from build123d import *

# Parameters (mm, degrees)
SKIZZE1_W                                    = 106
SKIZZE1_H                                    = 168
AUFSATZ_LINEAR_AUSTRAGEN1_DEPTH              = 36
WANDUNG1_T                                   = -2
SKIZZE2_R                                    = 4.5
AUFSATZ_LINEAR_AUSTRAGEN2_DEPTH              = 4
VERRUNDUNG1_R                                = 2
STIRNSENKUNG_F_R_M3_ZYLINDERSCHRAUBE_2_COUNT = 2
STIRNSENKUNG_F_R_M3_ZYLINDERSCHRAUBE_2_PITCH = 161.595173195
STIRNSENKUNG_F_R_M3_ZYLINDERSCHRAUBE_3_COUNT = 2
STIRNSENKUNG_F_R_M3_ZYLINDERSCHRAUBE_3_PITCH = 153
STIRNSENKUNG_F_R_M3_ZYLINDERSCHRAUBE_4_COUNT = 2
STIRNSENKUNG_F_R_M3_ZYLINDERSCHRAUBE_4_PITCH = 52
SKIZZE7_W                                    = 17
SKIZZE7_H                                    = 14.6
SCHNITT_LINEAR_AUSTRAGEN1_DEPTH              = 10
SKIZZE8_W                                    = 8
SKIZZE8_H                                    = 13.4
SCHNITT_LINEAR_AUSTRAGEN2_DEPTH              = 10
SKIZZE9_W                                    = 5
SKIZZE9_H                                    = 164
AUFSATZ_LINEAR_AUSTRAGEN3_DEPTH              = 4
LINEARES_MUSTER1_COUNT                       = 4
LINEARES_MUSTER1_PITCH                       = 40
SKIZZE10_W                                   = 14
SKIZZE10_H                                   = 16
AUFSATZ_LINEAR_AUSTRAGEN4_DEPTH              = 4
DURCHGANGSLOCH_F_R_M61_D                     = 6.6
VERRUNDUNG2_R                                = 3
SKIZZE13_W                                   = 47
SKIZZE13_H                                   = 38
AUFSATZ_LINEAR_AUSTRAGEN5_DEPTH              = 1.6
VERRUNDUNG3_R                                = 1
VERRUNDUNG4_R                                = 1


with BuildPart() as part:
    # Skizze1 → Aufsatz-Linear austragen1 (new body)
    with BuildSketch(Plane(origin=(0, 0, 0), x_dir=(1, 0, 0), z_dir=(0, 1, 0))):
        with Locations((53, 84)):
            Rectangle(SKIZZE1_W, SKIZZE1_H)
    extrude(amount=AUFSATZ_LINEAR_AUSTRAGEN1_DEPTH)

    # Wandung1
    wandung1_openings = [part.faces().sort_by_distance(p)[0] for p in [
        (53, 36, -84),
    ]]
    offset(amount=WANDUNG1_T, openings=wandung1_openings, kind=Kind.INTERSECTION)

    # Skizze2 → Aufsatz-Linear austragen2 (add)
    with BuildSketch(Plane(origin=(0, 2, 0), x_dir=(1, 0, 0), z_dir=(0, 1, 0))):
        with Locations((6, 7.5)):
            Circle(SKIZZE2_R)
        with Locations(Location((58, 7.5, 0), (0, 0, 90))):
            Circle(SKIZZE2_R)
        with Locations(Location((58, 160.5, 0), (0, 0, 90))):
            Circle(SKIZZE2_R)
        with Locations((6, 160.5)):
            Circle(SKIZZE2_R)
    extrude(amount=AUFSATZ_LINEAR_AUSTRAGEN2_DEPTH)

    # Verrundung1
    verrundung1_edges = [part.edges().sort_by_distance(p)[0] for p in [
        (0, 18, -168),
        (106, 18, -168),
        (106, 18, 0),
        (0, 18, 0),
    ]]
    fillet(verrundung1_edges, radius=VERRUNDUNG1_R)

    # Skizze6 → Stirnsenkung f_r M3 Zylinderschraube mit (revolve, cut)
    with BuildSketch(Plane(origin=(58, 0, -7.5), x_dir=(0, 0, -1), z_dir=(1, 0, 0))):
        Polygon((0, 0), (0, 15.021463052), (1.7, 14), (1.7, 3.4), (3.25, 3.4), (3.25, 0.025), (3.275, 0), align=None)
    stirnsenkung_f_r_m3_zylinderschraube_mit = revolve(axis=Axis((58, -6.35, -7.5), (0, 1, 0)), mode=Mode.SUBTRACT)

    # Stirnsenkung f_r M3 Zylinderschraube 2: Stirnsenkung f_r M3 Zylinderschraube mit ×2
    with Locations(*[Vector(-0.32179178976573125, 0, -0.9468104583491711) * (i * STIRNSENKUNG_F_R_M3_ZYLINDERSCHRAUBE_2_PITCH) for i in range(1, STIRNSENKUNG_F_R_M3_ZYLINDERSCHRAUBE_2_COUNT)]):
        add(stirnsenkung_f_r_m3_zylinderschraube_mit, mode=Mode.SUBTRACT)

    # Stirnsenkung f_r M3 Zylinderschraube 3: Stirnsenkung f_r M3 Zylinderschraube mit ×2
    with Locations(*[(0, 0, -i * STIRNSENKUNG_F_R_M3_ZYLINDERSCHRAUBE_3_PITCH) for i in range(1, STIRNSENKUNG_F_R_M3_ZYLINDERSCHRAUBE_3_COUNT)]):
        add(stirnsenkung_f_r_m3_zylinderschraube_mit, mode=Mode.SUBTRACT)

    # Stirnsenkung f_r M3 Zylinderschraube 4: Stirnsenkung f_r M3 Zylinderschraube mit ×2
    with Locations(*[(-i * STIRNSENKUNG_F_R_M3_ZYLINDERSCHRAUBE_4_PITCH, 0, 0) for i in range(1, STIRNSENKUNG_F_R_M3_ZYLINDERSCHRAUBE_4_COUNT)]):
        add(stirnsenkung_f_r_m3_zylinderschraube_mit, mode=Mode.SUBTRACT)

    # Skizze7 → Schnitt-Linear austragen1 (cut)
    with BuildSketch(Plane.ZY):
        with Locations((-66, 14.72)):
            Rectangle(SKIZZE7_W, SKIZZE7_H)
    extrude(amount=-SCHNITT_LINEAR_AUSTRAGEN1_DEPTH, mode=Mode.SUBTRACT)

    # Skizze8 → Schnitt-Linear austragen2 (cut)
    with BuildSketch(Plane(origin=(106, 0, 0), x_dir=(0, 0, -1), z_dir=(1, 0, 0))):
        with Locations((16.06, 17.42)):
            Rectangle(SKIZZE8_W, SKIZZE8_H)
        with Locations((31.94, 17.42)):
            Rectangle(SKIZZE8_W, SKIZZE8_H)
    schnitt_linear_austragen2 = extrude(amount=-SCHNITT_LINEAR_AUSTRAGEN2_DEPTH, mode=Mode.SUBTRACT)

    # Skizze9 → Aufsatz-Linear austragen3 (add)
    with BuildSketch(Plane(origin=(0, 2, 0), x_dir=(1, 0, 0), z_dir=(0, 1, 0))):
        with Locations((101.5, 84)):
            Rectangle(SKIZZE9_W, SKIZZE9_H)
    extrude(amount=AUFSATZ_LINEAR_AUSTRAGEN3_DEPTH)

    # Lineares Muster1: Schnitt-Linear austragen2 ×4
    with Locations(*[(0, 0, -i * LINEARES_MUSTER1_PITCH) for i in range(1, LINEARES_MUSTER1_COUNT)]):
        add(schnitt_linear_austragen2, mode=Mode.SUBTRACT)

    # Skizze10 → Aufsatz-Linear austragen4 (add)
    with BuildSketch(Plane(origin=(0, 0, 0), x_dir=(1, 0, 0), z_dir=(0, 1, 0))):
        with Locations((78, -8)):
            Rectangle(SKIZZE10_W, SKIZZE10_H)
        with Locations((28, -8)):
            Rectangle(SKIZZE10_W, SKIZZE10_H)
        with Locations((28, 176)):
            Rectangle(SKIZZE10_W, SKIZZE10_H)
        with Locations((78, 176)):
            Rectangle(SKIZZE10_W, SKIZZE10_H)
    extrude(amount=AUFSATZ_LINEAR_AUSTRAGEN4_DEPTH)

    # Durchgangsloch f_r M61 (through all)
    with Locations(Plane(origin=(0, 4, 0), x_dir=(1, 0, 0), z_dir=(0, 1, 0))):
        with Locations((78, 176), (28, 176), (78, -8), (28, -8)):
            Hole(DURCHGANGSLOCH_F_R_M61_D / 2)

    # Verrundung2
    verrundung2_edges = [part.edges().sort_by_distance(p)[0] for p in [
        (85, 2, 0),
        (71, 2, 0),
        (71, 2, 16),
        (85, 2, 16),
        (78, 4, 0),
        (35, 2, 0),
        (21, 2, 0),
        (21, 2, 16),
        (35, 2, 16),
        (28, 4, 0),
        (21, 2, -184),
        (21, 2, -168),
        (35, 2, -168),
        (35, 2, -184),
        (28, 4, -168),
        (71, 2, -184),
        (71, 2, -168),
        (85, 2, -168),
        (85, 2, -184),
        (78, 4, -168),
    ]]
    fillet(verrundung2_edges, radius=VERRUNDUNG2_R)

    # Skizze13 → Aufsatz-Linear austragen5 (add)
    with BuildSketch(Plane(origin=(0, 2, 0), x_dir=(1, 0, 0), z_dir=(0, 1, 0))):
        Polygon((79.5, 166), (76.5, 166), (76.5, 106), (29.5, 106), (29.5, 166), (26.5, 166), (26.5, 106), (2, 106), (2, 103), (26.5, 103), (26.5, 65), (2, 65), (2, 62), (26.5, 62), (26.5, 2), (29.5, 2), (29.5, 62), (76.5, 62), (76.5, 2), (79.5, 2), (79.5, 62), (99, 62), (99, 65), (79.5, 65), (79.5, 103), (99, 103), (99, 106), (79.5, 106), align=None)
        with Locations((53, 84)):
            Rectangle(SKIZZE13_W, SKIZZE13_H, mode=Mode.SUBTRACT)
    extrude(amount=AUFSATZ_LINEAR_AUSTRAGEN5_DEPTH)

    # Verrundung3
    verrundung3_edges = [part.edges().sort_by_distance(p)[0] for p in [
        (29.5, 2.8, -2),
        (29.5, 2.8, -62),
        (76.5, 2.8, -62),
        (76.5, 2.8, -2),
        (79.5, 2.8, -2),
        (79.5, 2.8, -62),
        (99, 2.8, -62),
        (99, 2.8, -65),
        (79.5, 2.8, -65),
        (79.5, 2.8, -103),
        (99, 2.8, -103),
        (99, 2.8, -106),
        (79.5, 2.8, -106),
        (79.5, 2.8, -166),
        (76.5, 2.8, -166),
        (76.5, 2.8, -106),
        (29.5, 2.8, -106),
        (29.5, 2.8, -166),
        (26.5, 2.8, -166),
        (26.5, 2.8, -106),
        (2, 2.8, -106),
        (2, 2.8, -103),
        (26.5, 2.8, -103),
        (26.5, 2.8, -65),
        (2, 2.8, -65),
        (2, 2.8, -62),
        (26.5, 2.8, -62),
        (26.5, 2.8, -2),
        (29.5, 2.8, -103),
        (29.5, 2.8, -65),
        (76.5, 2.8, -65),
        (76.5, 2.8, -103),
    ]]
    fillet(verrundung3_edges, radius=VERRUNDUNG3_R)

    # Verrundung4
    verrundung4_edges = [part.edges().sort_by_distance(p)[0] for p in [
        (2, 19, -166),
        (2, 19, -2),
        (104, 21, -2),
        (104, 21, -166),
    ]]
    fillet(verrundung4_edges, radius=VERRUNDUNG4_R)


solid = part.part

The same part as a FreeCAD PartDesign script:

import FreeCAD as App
import Part
import Sketcher
Q = App.Units.Quantity


def edges_at(feature, points):
    """Names of the edges that pass closest to the given points."""
    edges = feature.Shape.Edges
    near = lambda p: min(range(len(edges)), key=lambda i: edges[i].distToShape(Part.Vertex(*p))[0])
    return sorted({f"Edge{near(p) + 1}" for p in points})


def faces_at(feature, points):
    """Names of the faces that lie closest to the given points."""
    faces = feature.Shape.Faces
    near = lambda p: min(range(len(faces)), key=lambda i: faces[i].distToShape(Part.Vertex(*p))[0])
    return sorted({f"Face{near(p) + 1}" for p in points})


def add_polygon(sketch, points):
    """Adds a closed chain of lines whose ends are joined by coincident constraints."""
    first, n = sketch.GeometryCount, len(points)
    for a, b in zip(points, points[1:] + points[:1]):
        sketch.addGeometry(Part.LineSegment(App.Vector(*a, 0), App.Vector(*b, 0)), False)
    for i in range(n):
        sketch.addConstraint(Sketcher.Constraint("Coincident", first + i, 2, first + (i + 1) % n, 1))

doc = App.newDocument("Part")
params = doc.addObject("Spreadsheet::Sheet", "Params")
for row, (alias, value) in enumerate([
    ("sketch1_width", "106 mm"),
    ("sketch1_height", "168 mm"),
    ("pad1_length", "36 mm"),
    ("thickness_wall", "2 mm"),
    ("sketch2_diameter", "9 mm"),
    ("pad2_length", "4 mm"),
    ("fillet_radius", "2 mm"),
    ("sketch3_width", "10.6 mm"),
    ("sketch3_height", "1.55 mm"),
    ("groove_angle", "360 deg"),
    ("linearpattern_pitch", "161.595173 mm"),
    ("linearpattern2_pitch", "153 mm"),
    ("linearpattern3_pitch", "52 mm"),
    ("sketch4_height", "17 mm"),
    ("sketch4_width", "14.6 mm"),
    ("pocket1_length", "10 mm"),
    ("sketch5_height", "8 mm"),
    ("sketch5_width", "13.4 mm"),
    ("pocket2_length", "10 mm"),
    ("sketch6_width", "5 mm"),
    ("sketch6_height", "164 mm"),
    ("pad3_length", "4 mm"),
    ("linearpattern4_pitch", "40 mm"),
    ("sketch7_width", "14 mm"),
    ("sketch7_height", "16 mm"),
    ("pad4_length", "4 mm"),
    ("sketch8_diameter", "6.6 mm"),
    ("hole_diameter", "6.6 mm"),
    ("fillet2_radius", "3 mm"),
    ("sketch9_width", "3 mm"),
    ("sketch9_width2", "47 mm"),
    ("sketch9_height", "60 mm"),
    ("sketch9_height2", "38 mm"),
    ("sketch9_width3", "24.5 mm"),
    ("pad5_length", "1.6 mm"),
    ("fillet3_radius", "1 mm"),
    ("fillet4_radius", "1 mm"),
], start=1):
    params.set(f"A{row}", alias)
    params.set(f"B{row}", "=" + value)
    params.setAlias(f"B{row}", alias)

body = doc.addObject("PartDesign::Body", "Body")

# Sketch on XZ plane
sketch1 = doc.addObject("Sketcher::SketchObject", "Sketch")
body.addObject(sketch1)
sketch1.AttachmentSupport = (doc.XZ_Plane, [""])
sketch1.MapMode = "FlatFace"
add_polygon(sketch1, [(0, -168), (0, 0), (106, 0), (106, -168)])  # lines 0-3
sketch1.addConstraint([
    Sketcher.Constraint("Vertical", 0),
    Sketcher.Constraint("Horizontal", 1),
    Sketcher.Constraint("Vertical", 2),
    Sketcher.Constraint("Horizontal", 3),
    Sketcher.Constraint("Coincident", 0, 2, -1, 1),
    Sketcher.Constraint("DistanceX", 1, 1, 1, 2, Q("106 mm")),
    Sketcher.Constraint("DistanceY", 0, 1, 0, 2, Q("168 mm")),
])
sketch1.setExpression("Constraints[9]", "Params.sketch1_width")
sketch1.setExpression("Constraints[10]", "Params.sketch1_height")
pad1 = doc.addObject("PartDesign::Pad", "Pad")
body.addObject(pad1)
pad1.Profile = sketch1
pad1.setExpression("Length", "Params.pad1_length")
pad1.Reversed = True
doc.recompute()

thickness = doc.addObject("PartDesign::Thickness", "Thickness")
body.addObject(thickness)
thickness.Base = (pad1, faces_at(pad1, [(53, 36, -84)]))
thickness.setExpression("Value", "Params.thickness_wall")
thickness.Reversed = True
thickness.Join = "Intersection"

# Sketch on XZ plane
sketch2 = doc.addObject("Sketcher::SketchObject", "Sketch001")
body.addObject(sketch2)
sketch2.AttachmentSupport = (doc.XZ_Plane, [""])
sketch2.MapMode = "FlatFace"
sketch2.AttachmentOffset = App.Placement(App.Vector(0, 0, -2), App.Rotation())
sketch2.addGeometry([
    Part.Circle(App.Vector(6, -7.5, 0), App.Vector(0, 0, 1), 4.5),
    Part.Circle(App.Vector(58, -7.5, 0), App.Vector(0, 0, 1), 4.5),
    Part.Circle(App.Vector(58, -160.5, 0), App.Vector(0, 0, 1), 4.5),
    Part.Circle(App.Vector(6, -160.5, 0), App.Vector(0, 0, 1), 4.5),
], False)
sketch2.addConstraint([
    Sketcher.Constraint("Equal", 0, 1),
    Sketcher.Constraint("Equal", 1, 2),
    Sketcher.Constraint("Equal", 2, 3),
    Sketcher.Constraint("Horizontal", 0, 3, 1, 3),
    Sketcher.Constraint("Horizontal", 2, 3, 3, 3),
    Sketcher.Constraint("Vertical", 1, 3, 2, 3),
    Sketcher.Constraint("Vertical", 0, 3, 3, 3),
    Sketcher.Constraint("Diameter", 0, Q("9 mm")),
    Sketcher.Constraint("DistanceX", -1, 1, 0, 3, Q("6 mm")),
    Sketcher.Constraint("DistanceX", -1, 1, 1, 3, Q("58 mm")),
    Sketcher.Constraint("DistanceY", 2, 3, 1, 3, Q("153 mm")),
    Sketcher.Constraint("DistanceY", 0, 3, -1, 1, Q("7.5 mm")),
])
sketch2.setExpression("Constraints[7]", "Params.sketch2_diameter")
pad2 = doc.addObject("PartDesign::Pad", "Pad001")
body.addObject(pad2)
pad2.Profile = sketch2
pad2.setExpression("Length", "Params.pad2_length")
pad2.Reversed = True
doc.recompute()

fillet = doc.addObject("PartDesign::Fillet", "Fillet")
body.addObject(fillet)
fillet.Base = (pad2, edges_at(pad2, [
    (0, 18, -168),
    (106, 18, -168),
    (106, 18, 0),
    (0, 18, 0),
]))
fillet.setExpression("Radius", "Params.fillet_radius")

# Sketch on YZ plane
sketch3 = doc.addObject("Sketcher::SketchObject", "Sketch002")
body.addObject(sketch3)
sketch3.AttachmentSupport = (doc.YZ_Plane, [""])
sketch3.MapMode = "FlatFace"
sketch3.AttachmentOffset = App.Placement(App.Vector(0, 0, 58), App.Rotation())
add_polygon(sketch3, [(15.021463, -7.5), (0, -7.5), (0, -10.775), (0.025, -10.75), (3.4, -10.75), (3.4, -9.2), (14, -9.2)])  # lines 0-6
sketch3.addGeometry(Part.LineSegment(App.Vector(0, -7.5, 0), App.Vector(15.021463, -7.5, 0)), True)  # axis
sketch3.addConstraint([
    Sketcher.Constraint("Horizontal", 0),
    Sketcher.Constraint("Vertical", 1),
    Sketcher.Constraint("Horizontal", 3),
    Sketcher.Constraint("Vertical", 4),
    Sketcher.Constraint("Horizontal", 5),
    Sketcher.Constraint("Horizontal", 7),
    Sketcher.Constraint("Coincident", 7, 1, 0, 2),
    Sketcher.Constraint("PointOnObject", 0, 2, -2),
    Sketcher.Constraint("Equal", 0, 7),
    Sketcher.Constraint("Angle", 2, Q("45 deg")),
    Sketcher.Constraint("Angle", 6, Q("59 deg")),
    Sketcher.Constraint("DistanceX", 5, 1, 5, 2, Q("10.6 mm")),
    Sketcher.Constraint("DistanceX", -1, 1, 5, 2, Q("14 mm")),
    Sketcher.Constraint("DistanceY", 4, 1, 4, 2, Q("1.55 mm")),
    Sketcher.Constraint("DistanceY", 0, 2, -1, 1, Q("7.5 mm")),
    Sketcher.Constraint("DistanceY", 4, 2, -1, 1, Q("9.2 mm")),
    Sketcher.Constraint("DistanceX", 3, 1, 3, 2, Q("3.375 mm")),
])
sketch3.setExpression("Constraints[18]", "Params.sketch3_width")
sketch3.setExpression("Constraints[20]", "Params.sketch3_height")
groove = doc.addObject("PartDesign::Groove", "Groove")
body.addObject(groove)
groove.Profile = sketch3
groove.ReferenceAxis = (sketch3, ["Axis0"])
groove.setExpression("Angle", "Params.groove_angle")
doc.recompute()

datumline = doc.addObject("PartDesign::Line", "DatumLine")
body.addObject(datumline)
datumline.Placement = App.Placement(App.Vector(0, 0, 0), App.Rotation(App.Vector(0, 0, 1), App.Vector(-0.32179179, 0, -0.946810458)))
linearpattern = doc.addObject("PartDesign::LinearPattern", "LinearPattern")
body.addObject(linearpattern)
linearpattern.Originals = [groove]
linearpattern.Direction = (datumline, [""])
linearpattern.Mode = "offset"
linearpattern.setExpression("Offset", "Params.linearpattern_pitch")
linearpattern.Occurrences = 2
body.Tip = linearpattern
doc.recompute()

linearpattern2 = doc.addObject("PartDesign::LinearPattern", "LinearPattern001")
body.addObject(linearpattern2)
linearpattern2.Originals = [groove]
linearpattern2.Direction = (doc.Z_Axis, [""])
linearpattern2.Mode = "offset"
linearpattern2.setExpression("Offset", "Params.linearpattern2_pitch")
linearpattern2.Occurrences = 2
linearpattern2.Reversed = True
body.Tip = linearpattern2
doc.recompute()

linearpattern3 = doc.addObject("PartDesign::LinearPattern", "LinearPattern002")
body.addObject(linearpattern3)
linearpattern3.Originals = [groove]
linearpattern3.Direction = (doc.X_Axis, [""])
linearpattern3.Mode = "offset"
linearpattern3.setExpression("Offset", "Params.linearpattern3_pitch")
linearpattern3.Occurrences = 2
linearpattern3.Reversed = True
body.Tip = linearpattern3

# Sketch on YZ plane
sketch4 = doc.addObject("Sketcher::SketchObject", "Sketch003")
body.addObject(sketch4)
sketch4.AttachmentSupport = (doc.YZ_Plane, [""])
sketch4.MapMode = "FlatFace"
add_polygon(sketch4, [(22.02, -74.5), (7.42, -74.5), (7.42, -57.5), (22.02, -57.5)])  # lines 0-3
sketch4.addConstraint([
    Sketcher.Constraint("Horizontal", 0),
    Sketcher.Constraint("Vertical", 1),
    Sketcher.Constraint("Horizontal", 2),
    Sketcher.Constraint("Vertical", 3),
    Sketcher.Constraint("DistanceY", 1, 1, 1, 2, Q("17 mm")),
    Sketcher.Constraint("DistanceX", 0, 2, 0, 1, Q("14.6 mm")),
    Sketcher.Constraint("DistanceY", 0, 2, -1, 1, Q("74.5 mm")),
    Sketcher.Constraint("DistanceX", -1, 1, 0, 2, Q("7.42 mm")),
])
sketch4.setExpression("Constraints[8]", "Params.sketch4_height")
sketch4.setExpression("Constraints[9]", "Params.sketch4_width")
pocket1 = doc.addObject("PartDesign::Pocket", "Pocket")
body.addObject(pocket1)
pocket1.Profile = sketch4
pocket1.setExpression("Length", "Params.pocket1_length")
pocket1.Reversed = True

# Sketch on YZ plane
sketch5 = doc.addObject("Sketcher::SketchObject", "Sketch004")
body.addObject(sketch5)
sketch5.AttachmentSupport = (doc.YZ_Plane, [""])
sketch5.MapMode = "FlatFace"
sketch5.AttachmentOffset = App.Placement(App.Vector(0, 0, 106), App.Rotation())
add_polygon(sketch5, [(24.12, -12.06), (10.72, -12.06), (10.72, -20.06), (24.12, -20.06)])  # lines 0-3
add_polygon(sketch5, [(24.12, -27.94), (10.72, -27.94), (10.72, -35.94), (24.12, -35.94)])  # lines 4-7
sketch5.addConstraint([
    Sketcher.Constraint("Horizontal", 0),
    Sketcher.Constraint("Vertical", 1),
    Sketcher.Constraint("Horizontal", 2),
    Sketcher.Constraint("Vertical", 3),
    Sketcher.Constraint("Horizontal", 4),
    Sketcher.Constraint("Vertical", 5),
    Sketcher.Constraint("Horizontal", 6),
    Sketcher.Constraint("Vertical", 7),
    Sketcher.Constraint("Vertical", 1, 2, 4, 2),
    Sketcher.Constraint("Vertical", 3, 2, 6, 2),
    Sketcher.Constraint("Equal", 3, 5),
    Sketcher.Constraint("DistanceY", 1, 2, 1, 1, Q("8 mm")),
    Sketcher.Constraint("DistanceX", 0, 2, 0, 1, Q("13.4 mm")),
    Sketcher.Constraint("DistanceX", -1, 1, 0, 2, Q("10.72 mm")),
    Sketcher.Constraint("DistanceY", 0, 2, -1, 1, Q("12.06 mm")),
    Sketcher.Constraint("DistanceY", 4, 2, -1, 1, Q("27.94 mm")),
])
sketch5.setExpression("Constraints[19]", "Params.sketch5_height")
sketch5.setExpression("Constraints[20]", "Params.sketch5_width")
pocket2 = doc.addObject("PartDesign::Pocket", "Pocket001")
body.addObject(pocket2)
pocket2.Profile = sketch5
pocket2.setExpression("Length", "Params.pocket2_length")

# Sketch on XZ plane
sketch6 = doc.addObject("Sketcher::SketchObject", "Sketch005")
body.addObject(sketch6)
sketch6.AttachmentSupport = (doc.XZ_Plane, [""])
sketch6.MapMode = "FlatFace"
sketch6.AttachmentOffset = App.Placement(App.Vector(0, 0, -2), App.Rotation())
add_polygon(sketch6, [(99, -166), (99, -2), (104, -2), (104, -166)])  # lines 0-3
sketch6.addConstraint([
    Sketcher.Constraint("Vertical", 0),
    Sketcher.Constraint("Horizontal", 1),
    Sketcher.Constraint("Vertical", 2),
    Sketcher.Constraint("Horizontal", 3),
    Sketcher.Constraint("DistanceX", 1, 1, 1, 2, Q("5 mm")),
    Sketcher.Constraint("DistanceY", 0, 1, 0, 2, Q("164 mm")),
    Sketcher.Constraint("DistanceX", -1, 1, 0, 2, Q("99 mm")),
    Sketcher.Constraint("DistanceY", 0, 2, -1, 1, Q("2 mm")),
])
sketch6.setExpression("Constraints[8]", "Params.sketch6_width")
sketch6.setExpression("Constraints[9]", "Params.sketch6_height")
pad3 = doc.addObject("PartDesign::Pad", "Pad002")
body.addObject(pad3)
pad3.Profile = sketch6
pad3.setExpression("Length", "Params.pad3_length")
pad3.Reversed = True
doc.recompute()

linearpattern4 = doc.addObject("PartDesign::LinearPattern", "LinearPattern003")
body.addObject(linearpattern4)
linearpattern4.Originals = [pocket2]
linearpattern4.Direction = (doc.Z_Axis, [""])
linearpattern4.Mode = "offset"
linearpattern4.setExpression("Offset", "Params.linearpattern4_pitch")
linearpattern4.Occurrences = 4
linearpattern4.Reversed = True
body.Tip = linearpattern4

# Sketch on XZ plane
sketch7 = doc.addObject("Sketcher::SketchObject", "Sketch006")
body.addObject(sketch7)
sketch7.AttachmentSupport = (doc.XZ_Plane, [""])
sketch7.MapMode = "FlatFace"
add_polygon(sketch7, [(71, 0), (71, 16), (85, 16), (85, 0)])  # lines 0-3
add_polygon(sketch7, [(21, 0), (21, 16), (35, 16), (35, 0)])  # lines 4-7
add_polygon(sketch7, [(21, -184), (21, -168), (35, -168), (35, -184)])  # lines 8-11
add_polygon(sketch7, [(71, -184), (71, -168), (85, -168), (85, -184)])  # lines 12-15
sketch7.addConstraint([
    Sketcher.Constraint("Vertical", 0),
    Sketcher.Constraint("Horizontal", 1),
    Sketcher.Constraint("Vertical", 2),
    Sketcher.Constraint("Horizontal", 3),
    Sketcher.Constraint("Vertical", 4),
    Sketcher.Constraint("Horizontal", 5),
    Sketcher.Constraint("Vertical", 6),
    Sketcher.Constraint("Horizontal", 7),
    Sketcher.Constraint("Vertical", 8),
    Sketcher.Constraint("Horizontal", 9),
    Sketcher.Constraint("Vertical", 10),
    Sketcher.Constraint("Horizontal", 11),
    Sketcher.Constraint("Vertical", 12),
    Sketcher.Constraint("Horizontal", 13),
    Sketcher.Constraint("Vertical", 14),
    Sketcher.Constraint("Horizontal", 15),
    Sketcher.Constraint("PointOnObject", 2, 2, -1),
    Sketcher.Constraint("PointOnObject", 6, 2, -1),
    Sketcher.Constraint("Horizontal", 1, 2, 4, 2),
    Sketcher.Constraint("Horizontal", 9, 2, 12, 2),
    Sketcher.Constraint("Horizontal", 11, 2, 14, 2),
    Sketcher.Constraint("Vertical", 7, 2, 8, 2),
    Sketcher.Constraint("Vertical", 6, 2, 9, 2),
    Sketcher.Constraint("Vertical", 3, 2, 12, 2),
    Sketcher.Constraint("Vertical", 2, 2, 13, 2),
    Sketcher.Constraint("Equal", 3, 5),
    Sketcher.Constraint("Equal", 6, 8),
    Sketcher.Constraint("DistanceX", 1, 1, 1, 2, Q("14 mm")),
    Sketcher.Constraint("DistanceY", 0, 1, 0, 2, Q("16 mm")),
    Sketcher.Constraint("DistanceX", -1, 1, 0, 2, Q("71 mm")),
    Sketcher.Constraint("DistanceX", -1, 1, 4, 2, Q("21 mm")),
    Sketcher.Constraint("DistanceY", 8, 2, -1, 1, Q("168 mm")),
])
sketch7.setExpression("Constraints[43]", "Params.sketch7_width")
sketch7.setExpression("Constraints[44]", "Params.sketch7_height")
pad4 = doc.addObject("PartDesign::Pad", "Pad003")
body.addObject(pad4)
pad4.Profile = sketch7
pad4.setExpression("Length", "Params.pad4_length")
pad4.Reversed = True

# Sketch on XZ plane
sketch8 = doc.addObject("Sketcher::SketchObject", "Sketch007")
body.addObject(sketch8)
sketch8.AttachmentSupport = (doc.XZ_Plane, [""])
sketch8.MapMode = "FlatFace"
sketch8.AttachmentOffset = App.Placement(App.Vector(0, 0, -4), App.Rotation())
sketch8.addGeometry([
    Part.Circle(App.Vector(78, -176, 0), App.Vector(0, 0, 1), 3.3),
    Part.Circle(App.Vector(28, -176, 0), App.Vector(0, 0, 1), 3.3),
    Part.Circle(App.Vector(78, 8, 0), App.Vector(0, 0, 1), 3.3),
    Part.Circle(App.Vector(28, 8, 0), App.Vector(0, 0, 1), 3.3),
], False)
sketch8.addConstraint([
    Sketcher.Constraint("Equal", 0, 1),
    Sketcher.Constraint("Equal", 1, 2),
    Sketcher.Constraint("Equal", 2, 3),
    Sketcher.Constraint("Horizontal", 0, 3, 1, 3),
    Sketcher.Constraint("Horizontal", 2, 3, 3, 3),
    Sketcher.Constraint("Vertical", 0, 3, 2, 3),
    Sketcher.Constraint("Vertical", 1, 3, 3, 3),
    Sketcher.Constraint("Diameter", 0, Q("6.6 mm")),
    Sketcher.Constraint("DistanceX", -1, 1, 0, 3, Q("78 mm")),
    Sketcher.Constraint("DistanceY", 0, 3, -1, 1, Q("176 mm")),
    Sketcher.Constraint("DistanceX", -1, 1, 1, 3, Q("28 mm")),
    Sketcher.Constraint("DistanceY", -1, 1, 2, 3, Q("8 mm")),
])
sketch8.setExpression("Constraints[7]", "Params.sketch8_diameter")
doc.recompute()
hole = doc.addObject("PartDesign::Hole", "Hole")
body.addObject(hole)
hole.Profile = sketch8
hole.ThreadType = "None"
hole.setExpression("Diameter", "Params.hole_diameter")
hole.DepthType = "ThroughAll"
hole.Reversed = True
doc.recompute()

fillet2 = doc.addObject("PartDesign::Fillet", "Fillet001")
body.addObject(fillet2)
fillet2.Base = (hole, edges_at(hole, [
    (85, 2, 0),
    (71, 2, 0),
    (71, 2, 16),
    (85, 2, 16),
    (78, 4, 0),
    (35, 2, 0),
    (21, 2, 0),
    (21, 2, 16),
    (35, 2, 16),
    (28, 4, 0),
    (21, 2, -184),
    (21, 2, -168),
    (35, 2, -168),
    (35, 2, -184),
    (28, 4, -168),
    (71, 2, -184),
    (71, 2, -168),
    (85, 2, -168),
    (85, 2, -184),
    (78, 4, -168),
]))
fillet2.setExpression("Radius", "Params.fillet2_radius")

# Sketch on XZ plane
sketch9 = doc.addObject("Sketcher::SketchObject", "Sketch008")
body.addObject(sketch9)
sketch9.AttachmentSupport = (doc.XZ_Plane, [""])
sketch9.MapMode = "FlatFace"
sketch9.AttachmentOffset = App.Placement(App.Vector(0, 0, -2), App.Rotation())
add_polygon(sketch9, [(79.5, -166), (76.5, -166), (76.5, -106), (29.5, -106), (29.5, -166), (26.5, -166), (26.5, -106), (2, -106), (2, -103), (26.5, -103), (26.5, -65), (2, -65), (2, -62), (26.5, -62), (26.5, -2), (29.5, -2), (29.5, -62), (76.5, -62), (76.5, -2), (79.5, -2), (79.5, -62), (99, -62), (99, -65), (79.5, -65), (79.5, -103), (99, -103), (99, -106), (79.5, -106)])  # lines 0-27
add_polygon(sketch9, [(76.5, -65), (29.5, -65), (29.5, -103), (76.5, -103)])  # lines 28-31
sketch9.addConstraint([
    Sketcher.Constraint("Horizontal", 0),
    Sketcher.Constraint("Vertical", 1),
    Sketcher.Constraint("Horizontal", 2),
    Sketcher.Constraint("Vertical", 3),
    Sketcher.Constraint("Horizontal", 4),
    Sketcher.Constraint("Vertical", 5),
    Sketcher.Constraint("Horizontal", 6),
    Sketcher.Constraint("Vertical", 7),
    Sketcher.Constraint("Horizontal", 8),
    Sketcher.Constraint("Vertical", 9),
    Sketcher.Constraint("Horizontal", 10),
    Sketcher.Constraint("Vertical", 11),
    Sketcher.Constraint("Horizontal", 12),
    Sketcher.Constraint("Vertical", 13),
    Sketcher.Constraint("Horizontal", 14),
    Sketcher.Constraint("Vertical", 15),
    Sketcher.Constraint("Horizontal", 16),
    Sketcher.Constraint("Vertical", 17),
    Sketcher.Constraint("Horizontal", 18),
    Sketcher.Constraint("Vertical", 19),
    Sketcher.Constraint("Horizontal", 20),
    Sketcher.Constraint("Vertical", 21),
    Sketcher.Constraint("Horizontal", 22),
    Sketcher.Constraint("Vertical", 23),
    Sketcher.Constraint("Horizontal", 24),
    Sketcher.Constraint("Vertical", 25),
    Sketcher.Constraint("Horizontal", 26),
    Sketcher.Constraint("Vertical", 27),
    Sketcher.Constraint("Horizontal", 28),
    Sketcher.Constraint("Vertical", 29),
    Sketcher.Constraint("Horizontal", 30),
    Sketcher.Constraint("Vertical", 31),
    Sketcher.Constraint("Horizontal", 0, 2, 3, 2),
    Sketcher.Constraint("Horizontal", 2, 2, 5, 2),
    Sketcher.Constraint("Horizontal", 12, 2, 15, 2),
    Sketcher.Constraint("Horizontal", 14, 2, 17, 2),
    Sketcher.Constraint("Horizontal", 16, 2, 19, 2),
    Sketcher.Constraint("Horizontal", 10, 2, 21, 2),
    Sketcher.Constraint("Horizontal", 8, 2, 23, 2),
    Sketcher.Constraint("Horizontal", 6, 2, 25, 2),
    Sketcher.Constraint("Horizontal", 22, 2, 28, 2),
    Sketcher.Constraint("Horizontal", 24, 2, 29, 2),
    Sketcher.Constraint("Vertical", 5, 2, 8, 2),
    Sketcher.Constraint("Vertical", 7, 2, 10, 2),
    Sketcher.Constraint("Vertical", 9, 2, 12, 2),
    Sketcher.Constraint("Vertical", 3, 2, 14, 2),
    Sketcher.Constraint("Vertical", 1, 2, 16, 2),
    Sketcher.Constraint("Vertical", 19, 2, 22, 2),
    Sketcher.Constraint("Vertical", 21, 2, 24, 2),
    Sketcher.Constraint("Vertical", 23, 2, 26, 2),
    Sketcher.Constraint("Vertical", 15, 2, 28, 2),
    Sketcher.Constraint("Vertical", 17, 2, 30, 2),
    Sketcher.Constraint("Equal", 0, 4),
    Sketcher.Constraint("Equal", 18, 7),
    Sketcher.Constraint("Equal", 7, 11),
    Sketcher.Constraint("Equal", 5, 13),
    Sketcher.Constraint("DistanceX", 0, 2, 0, 1, Q("3 mm")),
    Sketcher.Constraint("DistanceX", 2, 2, 2, 1, Q("47 mm")),
    Sketcher.Constraint("DistanceY", 1, 1, 1, 2, Q("60 mm")),
    Sketcher.Constraint("DistanceY", 9, 1, 9, 2, Q("38 mm")),
    Sketcher.Constraint("DistanceX", 6, 2, 6, 1, Q("24.5 mm")),
    Sketcher.Constraint("DistanceX", 20, 1, 20, 2, Q("19.5 mm")),
    Sketcher.Constraint("DistanceY", 0, 2, -1, 1, Q("166 mm")),
    Sketcher.Constraint("DistanceX", -1, 1, 6, 2, Q("2 mm")),
])
sketch9.setExpression("Constraints[88]", "Params.sketch9_width")
sketch9.setExpression("Constraints[89]", "Params.sketch9_width2")
sketch9.setExpression("Constraints[90]", "Params.sketch9_height")
sketch9.setExpression("Constraints[91]", "Params.sketch9_height2")
sketch9.setExpression("Constraints[92]", "Params.sketch9_width3")
pad5 = doc.addObject("PartDesign::Pad", "Pad004")
body.addObject(pad5)
pad5.Profile = sketch9
pad5.setExpression("Length", "Params.pad5_length")
pad5.Reversed = True
doc.recompute()

fillet3 = doc.addObject("PartDesign::Fillet", "Fillet002")
body.addObject(fillet3)
fillet3.Base = (pad5, edges_at(pad5, [
    (29.5, 2.8, -2),
    (29.5, 2.8, -62),
    (76.5, 2.8, -62),
    (76.5, 2.8, -2),
    (79.5, 2.8, -2),
    (79.5, 2.8, -62),
    (99, 2.8, -62),
    (99, 2.8, -65),
    (79.5, 2.8, -65),
    (79.5, 2.8, -103),
    (99, 2.8, -103),
    (99, 2.8, -106),
    (79.5, 2.8, -106),
    (79.5, 2.8, -166),
    (76.5, 2.8, -166),
    (76.5, 2.8, -106),
    (29.5, 2.8, -106),
    (29.5, 2.8, -166),
    (26.5, 2.8, -166),
    (26.5, 2.8, -106),
    (2, 2.8, -106),
    (2, 2.8, -103),
    (26.5, 2.8, -103),
    (26.5, 2.8, -65),
    (2, 2.8, -65),
    (2, 2.8, -62),
    (26.5, 2.8, -62),
    (26.5, 2.8, -2),
    (29.5, 2.8, -103),
    (29.5, 2.8, -65),
    (76.5, 2.8, -65),
    (76.5, 2.8, -103),
]))
fillet3.setExpression("Radius", "Params.fillet3_radius")
doc.recompute()

fillet4 = doc.addObject("PartDesign::Fillet", "Fillet003")
body.addObject(fillet4)
fillet4.Base = (fillet3, edges_at(fillet3, [
    (2, 19, -166),
    (2, 19, -2),
    (104, 21, -2),
    (104, 21, -166),
]))
fillet4.setExpression("Radius", "Params.fillet4_radius")

doc.recompute()
